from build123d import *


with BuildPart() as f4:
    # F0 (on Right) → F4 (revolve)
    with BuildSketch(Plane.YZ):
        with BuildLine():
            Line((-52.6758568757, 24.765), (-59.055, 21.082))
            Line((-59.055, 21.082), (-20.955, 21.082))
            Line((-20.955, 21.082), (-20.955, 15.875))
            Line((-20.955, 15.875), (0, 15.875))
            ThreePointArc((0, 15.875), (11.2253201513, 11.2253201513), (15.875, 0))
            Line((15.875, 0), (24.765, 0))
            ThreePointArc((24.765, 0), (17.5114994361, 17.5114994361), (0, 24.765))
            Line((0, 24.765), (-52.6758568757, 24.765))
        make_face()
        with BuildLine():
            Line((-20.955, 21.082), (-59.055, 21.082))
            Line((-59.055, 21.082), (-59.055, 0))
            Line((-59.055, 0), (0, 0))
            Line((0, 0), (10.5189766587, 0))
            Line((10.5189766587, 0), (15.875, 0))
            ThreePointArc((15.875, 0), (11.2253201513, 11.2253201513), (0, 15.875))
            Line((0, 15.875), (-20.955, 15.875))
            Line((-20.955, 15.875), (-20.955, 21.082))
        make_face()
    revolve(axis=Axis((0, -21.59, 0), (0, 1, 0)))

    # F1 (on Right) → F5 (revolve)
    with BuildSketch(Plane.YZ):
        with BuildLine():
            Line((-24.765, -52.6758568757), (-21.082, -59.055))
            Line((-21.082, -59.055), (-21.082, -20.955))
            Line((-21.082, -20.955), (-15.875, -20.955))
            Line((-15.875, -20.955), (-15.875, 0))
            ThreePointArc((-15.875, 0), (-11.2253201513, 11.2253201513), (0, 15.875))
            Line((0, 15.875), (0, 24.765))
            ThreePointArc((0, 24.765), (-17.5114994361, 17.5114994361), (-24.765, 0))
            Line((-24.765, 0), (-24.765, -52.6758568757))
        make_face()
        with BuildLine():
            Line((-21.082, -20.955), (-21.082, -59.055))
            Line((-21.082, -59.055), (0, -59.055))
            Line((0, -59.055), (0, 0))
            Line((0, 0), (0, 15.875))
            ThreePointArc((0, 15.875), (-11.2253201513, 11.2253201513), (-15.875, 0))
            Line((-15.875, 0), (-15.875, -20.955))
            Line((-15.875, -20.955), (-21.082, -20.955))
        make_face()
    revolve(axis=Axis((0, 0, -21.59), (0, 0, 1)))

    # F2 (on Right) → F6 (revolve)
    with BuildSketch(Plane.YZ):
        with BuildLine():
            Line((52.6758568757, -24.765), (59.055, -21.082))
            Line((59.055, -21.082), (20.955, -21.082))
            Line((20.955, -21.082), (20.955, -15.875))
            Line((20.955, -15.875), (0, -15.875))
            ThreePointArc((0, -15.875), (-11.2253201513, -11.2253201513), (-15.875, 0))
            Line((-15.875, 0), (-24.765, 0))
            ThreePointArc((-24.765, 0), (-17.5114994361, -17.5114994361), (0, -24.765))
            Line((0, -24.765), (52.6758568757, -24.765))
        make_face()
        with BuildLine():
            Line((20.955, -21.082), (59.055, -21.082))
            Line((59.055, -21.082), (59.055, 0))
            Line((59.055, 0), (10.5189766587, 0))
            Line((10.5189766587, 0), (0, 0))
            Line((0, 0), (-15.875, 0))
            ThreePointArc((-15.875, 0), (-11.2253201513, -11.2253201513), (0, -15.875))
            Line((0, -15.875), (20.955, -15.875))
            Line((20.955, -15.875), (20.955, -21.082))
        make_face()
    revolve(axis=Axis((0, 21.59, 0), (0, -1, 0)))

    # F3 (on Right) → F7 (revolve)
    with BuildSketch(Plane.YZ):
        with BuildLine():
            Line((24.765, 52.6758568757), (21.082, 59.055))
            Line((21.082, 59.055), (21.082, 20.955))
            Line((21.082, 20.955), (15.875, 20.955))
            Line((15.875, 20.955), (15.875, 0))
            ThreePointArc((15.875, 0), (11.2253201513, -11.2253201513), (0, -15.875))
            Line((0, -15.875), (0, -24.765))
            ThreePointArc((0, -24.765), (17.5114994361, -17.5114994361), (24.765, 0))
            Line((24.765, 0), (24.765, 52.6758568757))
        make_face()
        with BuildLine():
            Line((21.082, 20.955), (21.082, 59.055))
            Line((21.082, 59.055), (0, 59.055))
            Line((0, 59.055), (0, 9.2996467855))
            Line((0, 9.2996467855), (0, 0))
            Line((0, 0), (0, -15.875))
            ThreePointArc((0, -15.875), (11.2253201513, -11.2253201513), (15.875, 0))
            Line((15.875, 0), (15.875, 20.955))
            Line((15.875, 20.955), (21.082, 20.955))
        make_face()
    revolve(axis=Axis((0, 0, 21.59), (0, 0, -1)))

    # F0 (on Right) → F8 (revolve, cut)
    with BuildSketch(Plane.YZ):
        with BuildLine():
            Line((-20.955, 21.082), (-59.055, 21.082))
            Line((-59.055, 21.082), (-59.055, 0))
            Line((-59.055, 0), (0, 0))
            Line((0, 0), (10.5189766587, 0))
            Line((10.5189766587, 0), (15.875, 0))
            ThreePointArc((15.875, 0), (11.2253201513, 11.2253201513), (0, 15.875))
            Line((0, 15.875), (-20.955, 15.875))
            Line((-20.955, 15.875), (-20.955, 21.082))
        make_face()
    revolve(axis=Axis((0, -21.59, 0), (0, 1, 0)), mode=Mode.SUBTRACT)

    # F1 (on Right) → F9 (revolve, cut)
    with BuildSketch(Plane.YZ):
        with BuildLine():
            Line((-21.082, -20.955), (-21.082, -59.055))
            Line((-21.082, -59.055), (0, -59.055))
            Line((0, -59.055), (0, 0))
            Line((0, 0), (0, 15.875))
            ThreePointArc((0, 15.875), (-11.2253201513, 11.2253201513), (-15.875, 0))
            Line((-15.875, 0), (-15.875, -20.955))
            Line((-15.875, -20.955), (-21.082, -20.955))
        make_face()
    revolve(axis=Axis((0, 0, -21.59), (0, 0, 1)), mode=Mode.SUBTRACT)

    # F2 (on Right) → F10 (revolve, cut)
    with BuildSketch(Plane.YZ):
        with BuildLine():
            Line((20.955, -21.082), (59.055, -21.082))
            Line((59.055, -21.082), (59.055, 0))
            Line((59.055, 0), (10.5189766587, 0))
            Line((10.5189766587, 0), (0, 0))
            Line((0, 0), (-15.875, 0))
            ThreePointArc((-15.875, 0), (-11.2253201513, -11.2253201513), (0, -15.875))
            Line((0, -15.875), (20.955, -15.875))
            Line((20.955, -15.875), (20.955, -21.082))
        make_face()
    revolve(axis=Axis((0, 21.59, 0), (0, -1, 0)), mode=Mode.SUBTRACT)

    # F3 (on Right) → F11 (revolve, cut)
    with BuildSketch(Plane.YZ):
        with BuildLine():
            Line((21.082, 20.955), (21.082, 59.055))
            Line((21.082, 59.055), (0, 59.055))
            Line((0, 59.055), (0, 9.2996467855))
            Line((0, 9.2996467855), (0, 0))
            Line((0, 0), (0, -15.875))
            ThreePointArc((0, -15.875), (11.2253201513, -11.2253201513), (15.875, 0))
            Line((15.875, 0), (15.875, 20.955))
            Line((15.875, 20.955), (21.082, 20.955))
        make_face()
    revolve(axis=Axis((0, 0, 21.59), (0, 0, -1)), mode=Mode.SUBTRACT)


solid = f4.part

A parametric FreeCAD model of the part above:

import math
import FreeCAD as App
import Part
import Sketcher

V = App.Vector
Q = App.Units.Quantity

doc = App.newDocument("Part")
params = doc.addObject("Spreadsheet::Sheet", "Params")
for row, (alias, value) in enumerate([
    ("sketch1_width", "3.3 in"),
    ("sketch1_radius", "0.975 in"),
    ("sketch1_height", "0.83 in"),
    ("revolution_angle", "360 deg"),
    ("sketch2_height", "3.3 in"),
    ("sketch2_radius", "0.975 in"),
    ("sketch2_width", "0.83 in"),
    ("revolution2_angle", "360 deg"),
    ("sketch3_width", "3.3 in"),
    ("sketch3_radius", "0.975 in"),
    ("sketch3_height", "0.83 in"),
    ("revolution3_angle", "360 deg"),
    ("sketch4_height", "3.3 in"),
    ("sketch4_radius", "0.975 in"),
    ("sketch4_width", "0.83 in"),
    ("revolution4_angle", "360 deg"),
    ("sketch5_width", "1.5 in"),
    ("sketch5_radius", "0.625 in"),
    ("sketch5_width2", "2.95 in"),
    ("sketch5_height", "0.83 in"),
    ("groove_angle", "360 deg"),
    ("sketch6_height", "1.5 in"),
    ("sketch6_radius", "0.625 in"),
    ("sketch6_width", "0.83 in"),
    ("sketch6_height2", "2.95 in"),
    ("groove2_angle", "360 deg"),
    ("sketch7_width", "1.5 in"),
    ("sketch7_radius", "0.625 in"),
    ("sketch7_width2", "2.95 in"),
    ("sketch7_height", "0.83 in"),
    ("groove3_angle", "360 deg"),
    ("sketch8_height", "1.5 in"),
    ("sketch8_radius", "0.625 in"),
    ("sketch8_width", "0.83 in"),
    ("sketch8_height2", "2.95 in"),
    ("groove4_angle", "360 deg"),
], start=1):
    params.set(f"A{row}", alias)
    params.set(f"B{row}", "=" + value)
    params.setAlias(f"B{row}", alias)

body = doc.addObject("PartDesign::Body", "Body")

# Sketch on YZ plane
sketch1 = body.newObject("Sketcher::SketchObject", "Sketch")
sketch1.AttachmentSupport = (doc.getObject("YZ_Plane"), [""])
sketch1.MapMode = "FlatFace"
sketch1.addGeometry(Part.LineSegment(V(-52.675857, 24.765, 0), V(-59.055, 21.082, 0)), False)
sketch1.addGeometry(Part.LineSegment(V(-59.055, 21.082, 0), V(-59.055, 0, 0)), False)
sketch1.addGeometry(Part.LineSegment(V(-59.055, 0, 0), V(24.765, 0, 0)), False)
sketch1.addGeometry(Part.ArcOfCircle(Part.Circle(V(0, 0, 0), V(0, 0, 1), 24.765), math.radians(0), math.radians(90)), False)
sketch1.addGeometry(Part.LineSegment(V(0, 24.765, 0), V(-52.675857, 24.765, 0)), False)
sketch1.addConstraint(Sketcher.Constraint("Coincident", 0, 2, 1, 1))
sketch1.addConstraint(Sketcher.Constraint("Coincident", 1, 2, 2, 1))
sketch1.addConstraint(Sketcher.Constraint("Coincident", 2, 2, 3, 1))
sketch1.addConstraint(Sketcher.Constraint("Tangent", 3, 2, 4, 1))
sketch1.addConstraint(Sketcher.Constraint("Coincident", 4, 2, 0, 1))
sketch1.addConstraint(Sketcher.Constraint("Vertical", 1))
sketch1.addConstraint(Sketcher.Constraint("Horizontal", 2))
sketch1.addConstraint(Sketcher.Constraint("Horizontal", 4))
sketch1.addConstraint(Sketcher.Constraint("Coincident", 3, 3, -1, 1))
sketch1.addConstraint(Sketcher.Constraint("PointOnObject", 1, 2, -1))
sketch1.addConstraint(Sketcher.Constraint("DistanceX", 2, 1, 2, 2, Q("3.3 in")))
sketch1.addConstraint(Sketcher.Constraint("Angle", 0, Q("-150 deg")))
sketch1.addConstraint(Sketcher.Constraint("Radius", 3, Q("0.975 in")))
sketch1.addConstraint(Sketcher.Constraint("DistanceY", 1, 2, 1, 1, Q("0.83 in")))
sketch1.setExpression("Constraints[10]", "Params.sketch1_width")
sketch1.setExpression("Constraints[12]", "Params.sketch1_radius")
sketch1.setExpression("Constraints[13]", "Params.sketch1_height")
revolution = body.newObject("PartDesign::Revolution", "Revolution")
revolution.Profile = sketch1
revolution.ReferenceAxis = (sketch1, ["H_Axis"])
revolution.setExpression("Angle", "Params.revolution_angle")

# Sketch on YZ plane
sketch2 = body.newObject("Sketcher::SketchObject", "Sketch001")
sketch2.AttachmentSupport = (doc.getObject("YZ_Plane"), [""])
sketch2.MapMode = "FlatFace"
sketch2.addGeometry(Part.LineSegment(V(-24.765, -52.675857, 0), V(-21.082, -59.055, 0)), False)
sketch2.addGeometry(Part.LineSegment(V(-21.082, -59.055, 0), V(0, -59.055, 0)), False)
sketch2.addGeometry(Part.LineSegment(V(0, -59.055, 0), V(0, 24.765, 0)), False)
sketch2.addGeometry(Part.ArcOfCircle(Part.Circle(V(0, 0, 0), V(0, 0, 1), 24.765), math.radians(90), math.radians(180)), False)
sketch2.addGeometry(Part.LineSegment(V(-24.765, 0, 0), V(-24.765, -52.675857, 0)), False)
sketch2.addConstraint(Sketcher.Constraint("Coincident", 0, 2, 1, 1))
sketch2.addConstraint(Sketcher.Constraint("Coincident", 1, 2, 2, 1))
sketch2.addConstraint(Sketcher.Constraint("Coincident", 2, 2, 3, 1))
sketch2.addConstraint(Sketcher.Constraint("Tangent", 3, 2, 4, 1))
sketch2.addConstraint(Sketcher.Constraint("Coincident", 4, 2, 0, 1))
sketch2.addConstraint(Sketcher.Constraint("Horizontal", 1))
sketch2.addConstraint(Sketcher.Constraint("Vertical", 2))
sketch2.addConstraint(Sketcher.Constraint("Vertical", 4))
sketch2.addConstraint(Sketcher.Constraint("Coincident", 3, 3, -1, 1))
sketch2.addConstraint(Sketcher.Constraint("PointOnObject", 1, 2, -2))
sketch2.addConstraint(Sketcher.Constraint("DistanceY", 2, 1, 2, 2, Q("3.3 in")))
sketch2.addConstraint(Sketcher.Constraint("Angle", 0, Q("-60 deg")))
sketch2.addConstraint(Sketcher.Constraint("Radius", 3, Q("0.975 in")))
sketch2.addConstraint(Sketcher.Constraint("DistanceX", 1, 1, 1, 2, Q("0.83 in")))
sketch2.setExpression("Constraints[10]", "Params.sketch2_height")
sketch2.setExpression("Constraints[12]", "Params.sketch2_radius")
sketch2.setExpression("Constraints[13]", "Params.sketch2_width")
revolution2 = body.newObject("PartDesign::Revolution", "Revolution001")
revolution2.Profile = sketch2
revolution2.ReferenceAxis = (sketch2, ["V_Axis"])
revolution2.setExpression("Angle", "Params.revolution2_angle")

# Sketch on YZ plane
sketch3 = body.newObject("Sketcher::SketchObject", "Sketch002")
sketch3.AttachmentSupport = (doc.getObject("YZ_Plane"), [""])
sketch3.MapMode = "FlatFace"
sketch3.addGeometry(Part.LineSegment(V(52.675857, -24.765, 0), V(59.055, -21.082, 0)), False)
sketch3.addGeometry(Part.LineSegment(V(59.055, -21.082, 0), V(59.055, 0, 0)), False)
sketch3.addGeometry(Part.LineSegment(V(59.055, 0, 0), V(-24.765, 0, 0)), False)
sketch3.addGeometry(Part.ArcOfCircle(Part.Circle(V(0, 0, 0), V(0, 0, 1), 24.765), math.radians(180), math.radians(270)), False)
sketch3.addGeometry(Part.LineSegment(V(0, -24.765, 0), V(52.675857, -24.765, 0)), False)
sketch3.addConstraint(Sketcher.Constraint("Coincident", 0, 2, 1, 1))
sketch3.addConstraint(Sketcher.Constraint("Coincident", 1, 2, 2, 1))
sketch3.addConstraint(Sketcher.Constraint("Coincident", 2, 2, 3, 1))
sketch3.addConstraint(Sketcher.Constraint("Tangent", 3, 2, 4, 1))
sketch3.addConstraint(Sketcher.Constraint("Coincident", 4, 2, 0, 1))
sketch3.addConstraint(Sketcher.Constraint("Vertical", 1))
sketch3.addConstraint(Sketcher.Constraint("Horizontal", 2))
sketch3.addConstraint(Sketcher.Constraint("Horizontal", 4))
sketch3.addConstraint(Sketcher.Constraint("Coincident", 3, 3, -1, 1))
sketch3.addConstraint(Sketcher.Constraint("PointOnObject", 1, 2, -1))
sketch3.addConstraint(Sketcher.Constraint("DistanceX", 2, 2, 2, 1, Q("3.3 in")))
sketch3.addConstraint(Sketcher.Constraint("Angle", 0, Q("30 deg")))
sketch3.addConstraint(Sketcher.Constraint("Radius", 3, Q("0.975 in")))
sketch3.addConstraint(Sketcher.Constraint("DistanceY", 1, 1, 1, 2, Q("0.83 in")))
sketch3.setExpression("Constraints[10]", "Params.sketch3_width")
sketch3.setExpression("Constraints[12]", "Params.sketch3_radius")
sketch3.setExpression("Constraints[13]", "Params.sketch3_height")
revolution3 = body.newObject("PartDesign::Revolution", "Revolution002")
revolution3.Profile = sketch3
revolution3.ReferenceAxis = (sketch3, ["H_Axis"])
revolution3.setExpression("Angle", "Params.revolution3_angle")

# Sketch on YZ plane
sketch4 = body.newObject("Sketcher::SketchObject", "Sketch003")
sketch4.AttachmentSupport = (doc.getObject("YZ_Plane"), [""])
sketch4.MapMode = "FlatFace"
sketch4.addGeometry(Part.LineSegment(V(24.765, 52.675857, 0), V(21.082, 59.055, 0)), False)
sketch4.addGeometry(Part.LineSegment(V(21.082, 59.055, 0), V(0, 59.055, 0)), False)
sketch4.addGeometry(Part.LineSegment(V(0, 59.055, 0), V(0, -24.765, 0)), False)
sketch4.addGeometry(Part.ArcOfCircle(Part.Circle(V(0, 0, 0), V(0, 0, 1), 24.765), math.radians(-90), math.radians(0)), False)
sketch4.addGeometry(Part.LineSegment(V(24.765, 0, 0), V(24.765, 52.675857, 0)), False)
sketch4.addConstraint(Sketcher.Constraint("Coincident", 0, 2, 1, 1))
sketch4.addConstraint(Sketcher.Constraint("Coincident", 1, 2, 2, 1))
sketch4.addConstraint(Sketcher.Constraint("Coincident", 2, 2, 3, 1))
sketch4.addConstraint(Sketcher.Constraint("Tangent", 3, 2, 4, 1))
sketch4.addConstraint(Sketcher.Constraint("Coincident", 4, 2, 0, 1))
sketch4.addConstraint(Sketcher.Constraint("Horizontal", 1))
sketch4.addConstraint(Sketcher.Constraint("Vertical", 2))
sketch4.addConstraint(Sketcher.Constraint("Vertical", 4))
sketch4.addConstraint(Sketcher.Constraint("Coincident", 3, 3, -1, 1))
sketch4.addConstraint(Sketcher.Constraint("PointOnObject", 1, 2, -2))
sketch4.addConstraint(Sketcher.Constraint("DistanceY", 2, 2, 2, 1, Q("3.3 in")))
sketch4.addConstraint(Sketcher.Constraint("Angle", 0, Q("120 deg")))
sketch4.addConstraint(Sketcher.Constraint("Radius", 3, Q("0.975 in")))
sketch4.addConstraint(Sketcher.Constraint("DistanceX", 1, 2, 1, 1, Q("0.83 in")))
sketch4.setExpression("Constraints[10]", "Params.sketch4_height")
sketch4.setExpression("Constraints[12]", "Params.sketch4_radius")
sketch4.setExpression("Constraints[13]", "Params.sketch4_width")
revolution4 = body.newObject("PartDesign::Revolution", "Revolution003")
revolution4.Profile = sketch4
revolution4.ReferenceAxis = (sketch4, ["V_Axis"])
revolution4.setExpression("Angle", "Params.revolution4_angle")

# Sketch on YZ plane
sketch5 = body.newObject("Sketcher::SketchObject", "Sketch004")
sketch5.AttachmentSupport = (doc.getObject("YZ_Plane"), [""])
sketch5.MapMode = "FlatFace"
sketch5.addGeometry(Part.LineSegment(V(-20.955, 21.082, 0), V(-59.055, 21.082, 0)), False)
sketch5.addGeometry(Part.LineSegment(V(-59.055, 21.082, 0), V(-59.055, 0, 0)), False)
sketch5.addGeometry(Part.LineSegment(V(-59.055, 0, 0), V(15.875, 0, 0)), False)
sketch5.addGeometry(Part.ArcOfCircle(Part.Circle(V(0, 0, 0), V(0, 0, 1), 15.875), math.radians(0), math.radians(90)), False)
sketch5.addGeometry(Part.LineSegment(V(0, 15.875, 0), V(-20.955, 15.875, 0)), False)
sketch5.addGeometry(Part.LineSegment(V(-20.955, 15.875, 0), V(-20.955, 21.082, 0)), False)
sketch5.addConstraint(Sketcher.Constraint("Coincident", 0, 2, 1, 1))
sketch5.addConstraint(Sketcher.Constraint("Coincident", 1, 2, 2, 1))
sketch5.addConstraint(Sketcher.Constraint("Coincident", 2, 2, 3, 1))
sketch5.addConstraint(Sketcher.Constraint("Tangent", 3, 2, 4, 1))
sketch5.addConstraint(Sketcher.Constraint("Coincident", 4, 2, 5, 1))
sketch5.addConstraint(Sketcher.Constraint("Coincident", 5, 2, 0, 1))
sketch5.addConstraint(Sketcher.Constraint("Horizontal", 0))
sketch5.addConstraint(Sketcher.Constraint("Vertical", 1))
sketch5.addConstraint(Sketcher.Constraint("Horizontal", 2))
sketch5.addConstraint(Sketcher.Constraint("Horizontal", 4))
sketch5.addConstraint(Sketcher.Constraint("Vertical", 5))
sketch5.addConstraint(Sketcher.Constraint("Coincident", 3, 3, -1, 1))
sketch5.addConstraint(Sketcher.Constraint("PointOnObject", 1, 2, -1))
sketch5.addConstraint(Sketcher.Constraint("DistanceX", 0, 2, 0, 1, Q("1.5 in")))
sketch5.addConstraint(Sketcher.Constraint("Radius", 3, Q("0.625 in")))
sketch5.addConstraint(Sketcher.Constraint("DistanceX", 2, 1, 2, 2, Q("2.95 in")))
sketch5.addConstraint(Sketcher.Constraint("DistanceY", 1, 2, 1, 1, Q("0.83 in")))
sketch5.setExpression("Constraints[13]", "Params.sketch5_width")
sketch5.setExpression("Constraints[14]", "Params.sketch5_radius")
sketch5.setExpression("Constraints[15]", "Params.sketch5_width2")
sketch5.setExpression("Constraints[16]", "Params.sketch5_height")
groove = body.newObject("PartDesign::Groove", "Groove")
groove.Profile = sketch5
groove.ReferenceAxis = (sketch5, ["H_Axis"])
groove.setExpression("Angle", "Params.groove_angle")

# Sketch on YZ plane
sketch6 = body.newObject("Sketcher::SketchObject", "Sketch005")
sketch6.AttachmentSupport = (doc.getObject("YZ_Plane"), [""])
sketch6.MapMode = "FlatFace"
sketch6.addGeometry(Part.LineSegment(V(-21.082, -20.955, 0), V(-21.082, -59.055, 0)), False)
sketch6.addGeometry(Part.LineSegment(V(-21.082, -59.055, 0), V(0, -59.055, 0)), False)
sketch6.addGeometry(Part.LineSegment(V(0, -59.055, 0), V(0, 15.875, 0)), False)
sketch6.addGeometry(Part.ArcOfCircle(Part.Circle(V(0, 0, 0), V(0, 0, 1), 15.875), math.radians(90), math.radians(180)), False)
sketch6.addGeometry(Part.LineSegment(V(-15.875, 0, 0), V(-15.875, -20.955, 0)), False)
sketch6.addGeometry(Part.LineSegment(V(-15.875, -20.955, 0), V(-21.082, -20.955, 0)), False)
sketch6.addConstraint(Sketcher.Constraint("Coincident", 0, 2, 1, 1))
sketch6.addConstraint(Sketcher.Constraint("Coincident", 1, 2, 2, 1))
sketch6.addConstraint(Sketcher.Constraint("Coincident", 2, 2, 3, 1))
sketch6.addConstraint(Sketcher.Constraint("Tangent", 3, 2, 4, 1))
sketch6.addConstraint(Sketcher.Constraint("Coincident", 4, 2, 5, 1))
sketch6.addConstraint(Sketcher.Constraint("Coincident", 5, 2, 0, 1))
sketch6.addConstraint(Sketcher.Constraint("Vertical", 0))
sketch6.addConstraint(Sketcher.Constraint("Horizontal", 1))
sketch6.addConstraint(Sketcher.Constraint("Vertical", 2))
sketch6.addConstraint(Sketcher.Constraint("Vertical", 4))
sketch6.addConstraint(Sketcher.Constraint("Horizontal", 5))
sketch6.addConstraint(Sketcher.Constraint("Coincident", 3, 3, -1, 1))
sketch6.addConstraint(Sketcher.Constraint("PointOnObject", 1, 2, -2))
sketch6.addConstraint(Sketcher.Constraint("DistanceY", 0, 2, 0, 1, Q("1.5 in")))
sketch6.addConstraint(Sketcher.Constraint("Radius", 3, Q("0.625 in")))
sketch6.addConstraint(Sketcher.Constraint("DistanceX", 1, 1, 1, 2, Q("0.83 in")))
sketch6.addConstraint(Sketcher.Constraint("DistanceY", 2, 1, 2, 2, Q("2.95 in")))
sketch6.setExpression("Constraints[13]", "Params.sketch6_height")
sketch6.setExpression("Constraints[14]", "Params.sketch6_radius")
sketch6.setExpression("Constraints[15]", "Params.sketch6_width")
sketch6.setExpression("Constraints[16]", "Params.sketch6_height2")
groove2 = body.newObject("PartDesign::Groove", "Groove001")
groove2.Profile = sketch6
groove2.ReferenceAxis = (sketch6, ["V_Axis"])
groove2.setExpression("Angle", "Params.groove2_angle")

# Sketch on YZ plane
sketch7 = body.newObject("Sketcher::SketchObject", "Sketch006")
sketch7.AttachmentSupport = (doc.getObject("YZ_Plane"), [""])
sketch7.MapMode = "FlatFace"
sketch7.addGeometry(Part.LineSegment(V(20.955, -21.082, 0), V(59.055, -21.082, 0)), False)
sketch7.addGeometry(Part.LineSegment(V(59.055, -21.082, 0), V(59.055, 0, 0)), False)
sketch7.addGeometry(Part.LineSegment(V(59.055, 0, 0), V(-15.875, 0, 0)), False)
sketch7.addGeometry(Part.ArcOfCircle(Part.Circle(V(0, 0, 0), V(0, 0, 1), 15.875), math.radians(180), math.radians(270)), False)
sketch7.addGeometry(Part.LineSegment(V(0, -15.875, 0), V(20.955, -15.875, 0)), False)
sketch7.addGeometry(Part.LineSegment(V(20.955, -15.875, 0), V(20.955, -21.082, 0)), False)
sketch7.addConstraint(Sketcher.Constraint("Coincident", 0, 2, 1, 1))
sketch7.addConstraint(Sketcher.Constraint("Coincident", 1, 2, 2, 1))
sketch7.addConstraint(Sketcher.Constraint("Coincident", 2, 2, 3, 1))
sketch7.addConstraint(Sketcher.Constraint("Tangent", 3, 2, 4, 1))
sketch7.addConstraint(Sketcher.Constraint("Coincident", 4, 2, 5, 1))
sketch7.addConstraint(Sketcher.Constraint("Coincident", 5, 2, 0, 1))
sketch7.addConstraint(Sketcher.Constraint("Horizontal", 0))
sketch7.addConstraint(Sketcher.Constraint("Vertical", 1))
sketch7.addConstraint(Sketcher.Constraint("Horizontal", 2))
sketch7.addConstraint(Sketcher.Constraint("Horizontal", 4))
sketch7.addConstraint(Sketcher.Constraint("Vertical", 5))
sketch7.addConstraint(Sketcher.Constraint("Coincident", 3, 3, -1, 1))
sketch7.addConstraint(Sketcher.Constraint("PointOnObject", 1, 2, -1))
sketch7.addConstraint(Sketcher.Constraint("DistanceX", 0, 1, 0, 2, Q("1.5 in")))
sketch7.addConstraint(Sketcher.Constraint("Radius", 3, Q("0.625 in")))
sketch7.addConstraint(Sketcher.Constraint("DistanceX", 2, 2, 2, 1, Q("2.95 in")))
sketch7.addConstraint(Sketcher.Constraint("DistanceY", 1, 1, 1, 2, Q("0.83 in")))
sketch7.setExpression("Constraints[13]", "Params.sketch7_width")
sketch7.setExpression("Constraints[14]", "Params.sketch7_radius")
sketch7.setExpression("Constraints[15]", "Params.sketch7_width2")
sketch7.setExpression("Constraints[16]", "Params.sketch7_height")
groove3 = body.newObject("PartDesign::Groove", "Groove002")
groove3.Profile = sketch7
groove3.ReferenceAxis = (sketch7, ["H_Axis"])
groove3.setExpression("Angle", "Params.groove3_angle")

# Sketch on YZ plane
sketch8 = body.newObject("Sketcher::SketchObject", "Sketch007")
sketch8.AttachmentSupport = (doc.getObject("YZ_Plane"), [""])
sketch8.MapMode = "FlatFace"
sketch8.addGeometry(Part.LineSegment(V(21.082, 20.955, 0), V(21.082, 59.055, 0)), False)
sketch8.addGeometry(Part.LineSegment(V(21.082, 59.055, 0), V(0, 59.055, 0)), False)
sketch8.addGeometry(Part.LineSegment(V(0, 59.055, 0), V(0, -15.875, 0)), False)
sketch8.addGeometry(Part.ArcOfCircle(Part.Circle(V(0, 0, 0), V(0, 0, 1), 15.875), math.radians(-90), math.radians(0)), False)
sketch8.addGeometry(Part.LineSegment(V(15.875, 0, 0), V(15.875, 20.955, 0)), False)
sketch8.addGeometry(Part.LineSegment(V(15.875, 20.955, 0), V(21.082, 20.955, 0)), False)
sketch8.addConstraint(Sketcher.Constraint("Coincident", 0, 2, 1, 1))
sketch8.addConstraint(Sketcher.Constraint("Coincident", 1, 2, 2, 1))
sketch8.addConstraint(Sketcher.Constraint("Coincident", 2, 2, 3, 1))
sketch8.addConstraint(Sketcher.Constraint("Tangent", 3, 2, 4, 1))
sketch8.addConstraint(Sketcher.Constraint("Coincident", 4, 2, 5, 1))
sketch8.addConstraint(Sketcher.Constraint("Coincident", 5, 2, 0, 1))
sketch8.addConstraint(Sketcher.Constraint("Vertical", 0))
sketch8.addConstraint(Sketcher.Constraint("Horizontal", 1))
sketch8.addConstraint(Sketcher.Constraint("Vertical", 2))
sketch8.addConstraint(Sketcher.Constraint("Vertical", 4))
sketch8.addConstraint(Sketcher.Constraint("Horizontal", 5))
sketch8.addConstraint(Sketcher.Constraint("Coincident", 3, 3, -1, 1))
sketch8.addConstraint(Sketcher.Constraint("PointOnObject", 1, 2, -2))
sketch8.addConstraint(Sketcher.Constraint("DistanceY", 0, 1, 0, 2, Q("1.5 in")))
sketch8.addConstraint(Sketcher.Constraint("Radius", 3, Q("0.625 in")))
sketch8.addConstraint(Sketcher.Constraint("DistanceX", 1, 2, 1, 1, Q("0.83 in")))
sketch8.addConstraint(Sketcher.Constraint("DistanceY", 2, 2, 2, 1, Q("2.95 in")))
sketch8.setExpression("Constraints[13]", "Params.sketch8_height")
sketch8.setExpression("Constraints[14]", "Params.sketch8_radius")
sketch8.setExpression("Constraints[15]", "Params.sketch8_width")
sketch8.setExpression("Constraints[16]", "Params.sketch8_height2")
groove4 = body.newObject("PartDesign::Groove", "Groove003")
groove4.Profile = sketch8
groove4.ReferenceAxis = (sketch8, ["V_Axis"])
groove4.setExpression("Angle", "Params.groove4_angle")

doc.recompute()
